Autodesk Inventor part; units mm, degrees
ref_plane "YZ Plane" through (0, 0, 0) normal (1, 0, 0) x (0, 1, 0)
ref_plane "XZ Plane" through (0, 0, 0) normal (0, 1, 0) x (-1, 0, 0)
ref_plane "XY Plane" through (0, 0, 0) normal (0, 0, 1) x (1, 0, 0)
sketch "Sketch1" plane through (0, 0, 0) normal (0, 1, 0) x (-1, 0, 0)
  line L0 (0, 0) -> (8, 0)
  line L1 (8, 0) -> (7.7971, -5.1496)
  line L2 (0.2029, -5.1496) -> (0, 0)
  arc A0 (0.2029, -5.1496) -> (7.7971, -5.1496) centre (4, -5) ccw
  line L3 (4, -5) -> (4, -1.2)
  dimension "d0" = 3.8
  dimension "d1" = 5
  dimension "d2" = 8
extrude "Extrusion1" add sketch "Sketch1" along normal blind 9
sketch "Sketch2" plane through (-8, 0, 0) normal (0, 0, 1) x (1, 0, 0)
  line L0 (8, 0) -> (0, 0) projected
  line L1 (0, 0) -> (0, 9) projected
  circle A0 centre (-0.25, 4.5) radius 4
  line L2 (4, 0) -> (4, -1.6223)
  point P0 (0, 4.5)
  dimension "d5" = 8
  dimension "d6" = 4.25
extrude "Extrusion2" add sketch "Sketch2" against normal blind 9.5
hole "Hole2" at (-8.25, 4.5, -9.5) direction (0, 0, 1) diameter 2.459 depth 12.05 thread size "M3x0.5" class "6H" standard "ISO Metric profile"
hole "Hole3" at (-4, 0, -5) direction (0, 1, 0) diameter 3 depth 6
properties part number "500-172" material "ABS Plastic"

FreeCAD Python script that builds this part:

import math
import FreeCAD as App
import Part
import Sketcher

V = App.Vector

doc = App.newDocument("Part")
body = doc.addObject("PartDesign::Body", "Body")

sketch1 = body.newObject("Sketcher::SketchObject", "Sketch")
sketch1.AttachmentSupport = (doc.getObject("XZ_Plane"), [""])
sketch1.MapMode = "FlatFace"
sketch1.addGeometry([
    Part.LineSegment(V(-8, 0, 0), V(0, 0, 0)),
    Part.LineSegment(V(0, 0, 0), V(-0.2029, -5.1496, 0)),
    Part.ArcOfCircle(Part.Circle(V(-4, -5, 0), V(0, 0, 1), 3.800046), math.radians(-177.7438), math.radians(-2.2562)),
    Part.LineSegment(V(-7.7971, -5.1496, 0), V(-8, 0, 0)),
], False)
sketch1.addConstraint([
    Sketcher.Constraint("Coincident", 0, 2, 1, 1),
    Sketcher.Constraint("Tangent", 1, 2, 2, 2),
    Sketcher.Constraint("Tangent", 2, 1, 3, 1),
    Sketcher.Constraint("Coincident", 3, 2, 0, 1),
    Sketcher.Constraint("Horizontal", 0),
    Sketcher.Constraint("Coincident", 0, 2, -1, 1),
    Sketcher.Constraint("Horizontal", 1, 2, 2, 1),
    Sketcher.Constraint("Radius", 2, 3.8),
    Sketcher.Constraint("DistanceX", 0, 1, 0, 2, 8.0),
    Sketcher.Constraint("DistanceY", 2, 3, -1, 1, 5.0),
])
pad1 = body.newObject("PartDesign::Pad", "Pad")
pad1.Profile = sketch1
pad1.Length = 9
pad1.Reversed = True

sketch2 = body.newObject("Sketcher::SketchObject", "Sketch001")
sketch2.AttachmentSupport = (doc.getObject("XY_Plane"), [""])
sketch2.MapMode = "FlatFace"
sketch2.addGeometry(Part.Circle(V(-8.25, 4.5, 0), V(0, 0, 1), 4), False)
sketch2.addConstraint([
    Sketcher.Constraint("Diameter", 0, 8.0),
    Sketcher.Constraint("DistanceY", -1, 1, 0, 3, 4.5),
    Sketcher.Constraint("DistanceX", 0, 3, -1, 1, 8.25),
])
pad2 = body.newObject("PartDesign::Pad", "Pad001")
pad2.Profile = sketch2
pad2.Length = 9.5
pad2.Reversed = True

sketch3 = body.newObject("Sketcher::SketchObject", "Sketch002")
sketch3.AttachmentSupport = (doc.getObject("XY_Plane"), [""])
sketch3.MapMode = "FlatFace"
sketch3.AttachmentOffset = App.Placement(V(0, 0, -9.5), App.Rotation())
sketch3.addGeometry(Part.Circle(V(-8.25, 4.5, 0), V(0, 0, 1), 1.2295), False)
sketch3.addConstraint([
    Sketcher.Constraint("Diameter", 0, 2.459),
    Sketcher.Constraint("DistanceY", -1, 1, 0, 3, 4.5),
    Sketcher.Constraint("DistanceX", 0, 3, -1, 1, 8.25),
])
doc.recompute()
hole = body.newObject("PartDesign::Hole", "Hole")
hole.Profile = sketch3
hole.ThreadType = "None"
hole.Diameter = 2.459
hole.DepthType = "Dimension"
hole.Depth = 12.05
hole.DrillPoint = "Flat"
hole.Reversed = True

sketch4 = body.newObject("Sketcher::SketchObject", "Sketch003")
sketch4.AttachmentSupport = (doc.getObject("XZ_Plane"), [""])
sketch4.MapMode = "FlatFace"
sketch4.addGeometry(Part.Circle(V(-4, -5, 0), V(0, 0, 1), 1.5), False)
sketch4.addConstraint([
    Sketcher.Constraint("Diameter", 0, 3.0),
    Sketcher.Constraint("DistanceX", 0, 3, -1, 1, 4.0),
    Sketcher.Constraint("DistanceY", 0, 3, -1, 1, 5.0),
])
doc.recompute()
hole2 = body.newObject("PartDesign::Hole", "Hole001")
hole2.Profile = sketch4
hole2.ThreadType = "None"
hole2.Diameter = 3
hole2.DepthType = "Dimension"
hole2.Depth = 6
hole2.DrillPoint = "Flat"

doc.recompute()
